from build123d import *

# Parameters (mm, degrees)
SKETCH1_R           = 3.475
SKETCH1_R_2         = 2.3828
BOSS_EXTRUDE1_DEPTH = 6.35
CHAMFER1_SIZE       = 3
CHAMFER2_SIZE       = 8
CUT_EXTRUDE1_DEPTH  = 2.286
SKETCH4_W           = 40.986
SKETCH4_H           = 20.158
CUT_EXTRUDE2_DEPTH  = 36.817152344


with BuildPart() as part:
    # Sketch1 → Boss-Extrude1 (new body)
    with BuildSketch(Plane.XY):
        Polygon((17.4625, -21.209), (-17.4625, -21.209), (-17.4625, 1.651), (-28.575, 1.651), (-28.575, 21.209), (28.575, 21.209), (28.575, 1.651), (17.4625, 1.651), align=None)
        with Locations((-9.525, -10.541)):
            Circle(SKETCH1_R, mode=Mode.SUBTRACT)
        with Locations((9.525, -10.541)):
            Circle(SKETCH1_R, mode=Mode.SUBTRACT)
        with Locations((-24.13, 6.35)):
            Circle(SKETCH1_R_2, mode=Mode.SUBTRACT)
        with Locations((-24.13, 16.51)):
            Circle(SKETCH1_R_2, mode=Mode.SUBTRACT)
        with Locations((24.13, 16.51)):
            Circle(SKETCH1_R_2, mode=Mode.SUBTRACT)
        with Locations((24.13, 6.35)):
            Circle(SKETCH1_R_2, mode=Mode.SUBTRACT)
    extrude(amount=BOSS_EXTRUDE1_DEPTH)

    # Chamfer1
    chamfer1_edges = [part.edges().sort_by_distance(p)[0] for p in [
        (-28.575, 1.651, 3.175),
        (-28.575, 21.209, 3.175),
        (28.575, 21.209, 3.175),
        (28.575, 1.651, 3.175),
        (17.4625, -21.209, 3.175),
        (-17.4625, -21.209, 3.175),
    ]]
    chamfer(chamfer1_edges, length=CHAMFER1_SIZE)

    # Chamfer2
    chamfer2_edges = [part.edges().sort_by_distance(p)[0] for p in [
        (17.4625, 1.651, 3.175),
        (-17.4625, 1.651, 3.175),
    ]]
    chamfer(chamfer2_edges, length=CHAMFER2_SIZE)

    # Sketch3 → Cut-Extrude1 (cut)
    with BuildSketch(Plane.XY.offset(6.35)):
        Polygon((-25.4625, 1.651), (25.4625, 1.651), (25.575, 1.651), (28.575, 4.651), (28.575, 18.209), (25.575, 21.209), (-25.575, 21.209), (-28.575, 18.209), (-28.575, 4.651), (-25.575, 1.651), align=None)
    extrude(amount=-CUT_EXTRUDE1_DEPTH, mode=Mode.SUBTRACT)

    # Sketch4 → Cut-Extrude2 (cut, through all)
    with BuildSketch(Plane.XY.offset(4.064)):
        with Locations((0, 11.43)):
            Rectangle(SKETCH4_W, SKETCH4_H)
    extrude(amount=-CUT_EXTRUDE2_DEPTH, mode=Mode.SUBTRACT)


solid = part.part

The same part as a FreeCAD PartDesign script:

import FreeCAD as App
import Part
import Sketcher

V = App.Vector
Q = App.Units.Quantity


def edges_at(feature, points):
    """Names of the edges that pass closest to the given points."""
    edges = feature.Shape.Edges
    near = lambda p: min(range(len(edges)), key=lambda i: edges[i].distToShape(Part.Vertex(*p))[0])
    return sorted({f"Edge{near(p) + 1}" for p in points})

doc = App.newDocument("Part")
body = doc.addObject("PartDesign::Body", "Body")

sketch1 = body.newObject("Sketcher::SketchObject", "Sketch")
sketch1.AttachmentSupport = (doc.getObject("XY_Plane"), [""])
sketch1.MapMode = "FlatFace"
sketch1.addGeometry([
    Part.LineSegment(V(-17.4625, -21.209, 0), V(17.4625, -21.209, 0)),
    Part.LineSegment(V(17.4625, -21.209, 0), V(17.4625, 1.651, 0)),
    Part.LineSegment(V(17.4625, 1.651, 0), V(28.575, 1.651, 0)),
    Part.LineSegment(V(28.575, 1.651, 0), V(28.575, 21.209, 0)),
    Part.LineSegment(V(28.575, 21.209, 0), V(-28.575, 21.209, 0)),
    Part.LineSegment(V(-28.575, 21.209, 0), V(-28.575, 1.651, 0)),
    Part.LineSegment(V(-28.575, 1.651, 0), V(-17.4625, 1.651, 0)),
    Part.LineSegment(V(-17.4625, 1.651, 0), V(-17.4625, -21.209, 0)),
    Part.Circle(V(9.525, -10.541, 0), V(0, 0, 1), 3.475),
    Part.Circle(V(-9.525, -10.541, 0), V(0, 0, 1), 3.475),
    Part.Circle(V(24.13, 6.35, 0), V(0, 0, 1), 2.3828),
    Part.Circle(V(24.13, 16.51, 0), V(0, 0, 1), 2.3828),
    Part.Circle(V(-24.13, 6.35, 0), V(0, 0, 1), 2.3828),
    Part.Circle(V(-24.13, 16.51, 0), V(0, 0, 1), 2.3828),
], False)
sketch1.addConstraint([
    Sketcher.Constraint("Coincident", 0, 2, 1, 1),
    Sketcher.Constraint("Coincident", 1, 2, 2, 1),
    Sketcher.Constraint("Coincident", 2, 2, 3, 1),
    Sketcher.Constraint("Coincident", 3, 2, 4, 1),
    Sketcher.Constraint("Coincident", 4, 2, 5, 1),
    Sketcher.Constraint("Coincident", 5, 2, 6, 1),
    Sketcher.Constraint("Coincident", 6, 2, 7, 1),
    Sketcher.Constraint("Coincident", 7, 2, 0, 1),
    Sketcher.Constraint("Horizontal", 0),
    Sketcher.Constraint("Vertical", 1),
    Sketcher.Constraint("Horizontal", 2),
    Sketcher.Constraint("Vertical", 3),
    Sketcher.Constraint("Horizontal", 4),
    Sketcher.Constraint("Vertical", 5),
    Sketcher.Constraint("Horizontal", 6),
    Sketcher.Constraint("Vertical", 7),
    Sketcher.Constraint("Equal", 8, 9),
    Sketcher.Constraint("Equal", 10, 11),
    Sketcher.Constraint("Equal", 11, 12),
    Sketcher.Constraint("Equal", 12, 13),
    Sketcher.Constraint("Symmetric", 8, 3, 9, 3, -2),
    Sketcher.Constraint("Symmetric", 10, 3, 12, 3, -2),
    Sketcher.Constraint("Symmetric", 11, 3, 13, 3, -2),
    Sketcher.Constraint("Symmetric", 2, 2, 5, 2, -2),
    Sketcher.Constraint("Vertical", 10, 3, 11, 3),
    Sketcher.Constraint("Equal", 2, 6),
    Sketcher.Constraint("DistanceY", 1, 1, 1, 2, Q("0.9 in")),
    Sketcher.Constraint("DistanceX", 4, 2, 4, 1, Q("2.25 in")),
    Sketcher.Constraint("DistanceY", 3, 1, 3, 2, Q("0.77 in")),
    Sketcher.Constraint("DistanceY", 10, 3, 11, 3, Q("0.4 in")),
    Sketcher.Constraint("DistanceX", 12, 3, 10, 3, Q("1.9 in")),
    Sketcher.Constraint("DistanceX", 4, 2, 8, 3, Q("1.5 in")),
    Sketcher.Constraint("Diameter", 8, 6.95),
    Sketcher.Constraint("Diameter", 10, 4.7656),
    Sketcher.Constraint("DistanceX", 0, 1, 0, 2, Q("1.375 in")),
    Sketcher.Constraint("DistanceY", -1, 1, 10, 3, Q("0.25 in")),
    Sketcher.Constraint("DistanceY", 0, 2, 8, 3, Q("0.42 in")),
    Sketcher.Constraint("DistanceY", 8, 3, -1, 1, Q("0.415 in")),
])
pad1 = body.newObject("PartDesign::Pad", "Pad")
pad1.Profile = sketch1
pad1.Length = Q("0.25 in")
doc.recompute()

chamfer = body.newObject("PartDesign::Chamfer", "Chamfer")
chamfer.Base = (pad1, edges_at(pad1, [
    (-28.575, 1.651, 3.175),
    (-28.575, 21.209, 3.175),
    (28.575, 21.209, 3.175),
    (28.575, 1.651, 3.175),
    (17.462, -21.209, 3.175),
    (-17.462, -21.209, 3.175),
]))
chamfer.Size = 3
doc.recompute()

chamfer2 = body.newObject("PartDesign::Chamfer", "Chamfer001")
chamfer2.Base = (chamfer, edges_at(chamfer, [(17.462, 1.651, 3.175), (-17.462, 1.651, 3.175)]))
chamfer2.Size = 8

sketch2 = body.newObject("Sketcher::SketchObject", "Sketch001")
sketch2.AttachmentSupport = (doc.getObject("XY_Plane"), [""])
sketch2.MapMode = "FlatFace"
sketch2.AttachmentOffset = App.Placement(V(0, 0, 0.25 * 25.4), App.Rotation())
sketch2.addGeometry([
    Part.LineSegment(V(25.575, 1.651, 0), V(28.575, 4.651, 0)),
    Part.LineSegment(V(28.575, 4.651, 0), V(28.575, 18.209, 0)),
    Part.LineSegment(V(28.575, 18.209, 0), V(25.575, 21.209, 0)),
    Part.LineSegment(V(25.575, 21.209, 0), V(-25.575, 21.209, 0)),
    Part.LineSegment(V(-25.575, 21.209, 0), V(-28.575, 18.209, 0)),
    Part.LineSegment(V(-28.575, 18.209, 0), V(-28.575, 4.651, 0)),
    Part.LineSegment(V(-28.575, 4.651, 0), V(-25.575, 1.651, 0)),
    Part.LineSegment(V(-25.575, 1.651, 0), V(25.575, 1.651, 0)),
], False)
sketch2.addConstraint([
    Sketcher.Constraint("Coincident", 0, 2, 1, 1),
    Sketcher.Constraint("Coincident", 1, 2, 2, 1),
    Sketcher.Constraint("Coincident", 2, 2, 3, 1),
    Sketcher.Constraint("Coincident", 3, 2, 4, 1),
    Sketcher.Constraint("Coincident", 4, 2, 5, 1),
    Sketcher.Constraint("Coincident", 5, 2, 6, 1),
    Sketcher.Constraint("Coincident", 6, 2, 7, 1),
    Sketcher.Constraint("Coincident", 7, 2, 0, 1),
    Sketcher.Constraint("Vertical", 1),
    Sketcher.Constraint("Horizontal", 3),
    Sketcher.Constraint("Vertical", 5),
    Sketcher.Constraint("Horizontal", 7),
    Sketcher.Constraint("Symmetric", 1, 2, 4, 2, -2),
    Sketcher.Constraint("Perpendicular", 0, 2),
    Sketcher.Constraint("Perpendicular", 2, 4),
    Sketcher.Constraint("Perpendicular", 4, 6),
    Sketcher.Constraint("Horizontal", 0, 2, 5, 2),
    Sketcher.Constraint("Vertical", 3, 2, 6, 2),
    Sketcher.Constraint("Vertical", 2, 2, 7, 2),
    Sketcher.Constraint("DistanceX", 4, 2, 1, 2, Q("2.25 in")),
    Sketcher.Constraint("DistanceY", 6, 2, 3, 2, Q("0.77 in")),
    Sketcher.Constraint("DistanceY", -1, 1, 2, 2, Q("0.835 in")),
    Sketcher.Constraint("DistanceX", 3, 2, 3, 1, 51.15),
])
pocket1 = body.newObject("PartDesign::Pocket", "Pocket")
pocket1.Profile = sketch2
pocket1.Length = Q("0.09 in")

sketch3 = body.newObject("Sketcher::SketchObject", "Sketch002")
sketch3.AttachmentSupport = (doc.getObject("XY_Plane"), [""])
sketch3.MapMode = "FlatFace"
sketch3.AttachmentOffset = App.Placement(V(0, 0, 0.16 * 25.4), App.Rotation())
sketch3.addGeometry([
    Part.LineSegment(V(-20.493, 21.509, 0), V(-20.493, 1.351, 0)),
    Part.LineSegment(V(-20.493, 1.351, 0), V(20.493, 1.351, 0)),
    Part.LineSegment(V(20.493, 1.351, 0), V(20.493, 21.509, 0)),
    Part.LineSegment(V(20.493, 21.509, 0), V(-20.493, 21.509, 0)),
], False)
sketch3.addConstraint([
    Sketcher.Constraint("Coincident", 0, 2, 1, 1),
    Sketcher.Constraint("Coincident", 1, 2, 2, 1),
    Sketcher.Constraint("Coincident", 2, 2, 3, 1),
    Sketcher.Constraint("Coincident", 3, 2, 0, 1),
    Sketcher.Constraint("Vertical", 0),
    Sketcher.Constraint("Horizontal", 1),
    Sketcher.Constraint("Vertical", 2),
    Sketcher.Constraint("Horizontal", 3),
    Sketcher.Constraint("DistanceX", 1, 1, 1, 2, 40.986),
    Sketcher.Constraint("DistanceY", 0, 2, 0, 1, 20.158),
    Sketcher.Constraint("DistanceX", 0, 2, -1, 1, 20.493),
    Sketcher.Constraint("DistanceY", -1, 1, 0, 2, 1.351),
])
pocket2 = body.newObject("PartDesign::Pocket", "Pocket001")
pocket2.Profile = sketch3
pocket2.Type = "ThroughAll"

doc.recompute()
